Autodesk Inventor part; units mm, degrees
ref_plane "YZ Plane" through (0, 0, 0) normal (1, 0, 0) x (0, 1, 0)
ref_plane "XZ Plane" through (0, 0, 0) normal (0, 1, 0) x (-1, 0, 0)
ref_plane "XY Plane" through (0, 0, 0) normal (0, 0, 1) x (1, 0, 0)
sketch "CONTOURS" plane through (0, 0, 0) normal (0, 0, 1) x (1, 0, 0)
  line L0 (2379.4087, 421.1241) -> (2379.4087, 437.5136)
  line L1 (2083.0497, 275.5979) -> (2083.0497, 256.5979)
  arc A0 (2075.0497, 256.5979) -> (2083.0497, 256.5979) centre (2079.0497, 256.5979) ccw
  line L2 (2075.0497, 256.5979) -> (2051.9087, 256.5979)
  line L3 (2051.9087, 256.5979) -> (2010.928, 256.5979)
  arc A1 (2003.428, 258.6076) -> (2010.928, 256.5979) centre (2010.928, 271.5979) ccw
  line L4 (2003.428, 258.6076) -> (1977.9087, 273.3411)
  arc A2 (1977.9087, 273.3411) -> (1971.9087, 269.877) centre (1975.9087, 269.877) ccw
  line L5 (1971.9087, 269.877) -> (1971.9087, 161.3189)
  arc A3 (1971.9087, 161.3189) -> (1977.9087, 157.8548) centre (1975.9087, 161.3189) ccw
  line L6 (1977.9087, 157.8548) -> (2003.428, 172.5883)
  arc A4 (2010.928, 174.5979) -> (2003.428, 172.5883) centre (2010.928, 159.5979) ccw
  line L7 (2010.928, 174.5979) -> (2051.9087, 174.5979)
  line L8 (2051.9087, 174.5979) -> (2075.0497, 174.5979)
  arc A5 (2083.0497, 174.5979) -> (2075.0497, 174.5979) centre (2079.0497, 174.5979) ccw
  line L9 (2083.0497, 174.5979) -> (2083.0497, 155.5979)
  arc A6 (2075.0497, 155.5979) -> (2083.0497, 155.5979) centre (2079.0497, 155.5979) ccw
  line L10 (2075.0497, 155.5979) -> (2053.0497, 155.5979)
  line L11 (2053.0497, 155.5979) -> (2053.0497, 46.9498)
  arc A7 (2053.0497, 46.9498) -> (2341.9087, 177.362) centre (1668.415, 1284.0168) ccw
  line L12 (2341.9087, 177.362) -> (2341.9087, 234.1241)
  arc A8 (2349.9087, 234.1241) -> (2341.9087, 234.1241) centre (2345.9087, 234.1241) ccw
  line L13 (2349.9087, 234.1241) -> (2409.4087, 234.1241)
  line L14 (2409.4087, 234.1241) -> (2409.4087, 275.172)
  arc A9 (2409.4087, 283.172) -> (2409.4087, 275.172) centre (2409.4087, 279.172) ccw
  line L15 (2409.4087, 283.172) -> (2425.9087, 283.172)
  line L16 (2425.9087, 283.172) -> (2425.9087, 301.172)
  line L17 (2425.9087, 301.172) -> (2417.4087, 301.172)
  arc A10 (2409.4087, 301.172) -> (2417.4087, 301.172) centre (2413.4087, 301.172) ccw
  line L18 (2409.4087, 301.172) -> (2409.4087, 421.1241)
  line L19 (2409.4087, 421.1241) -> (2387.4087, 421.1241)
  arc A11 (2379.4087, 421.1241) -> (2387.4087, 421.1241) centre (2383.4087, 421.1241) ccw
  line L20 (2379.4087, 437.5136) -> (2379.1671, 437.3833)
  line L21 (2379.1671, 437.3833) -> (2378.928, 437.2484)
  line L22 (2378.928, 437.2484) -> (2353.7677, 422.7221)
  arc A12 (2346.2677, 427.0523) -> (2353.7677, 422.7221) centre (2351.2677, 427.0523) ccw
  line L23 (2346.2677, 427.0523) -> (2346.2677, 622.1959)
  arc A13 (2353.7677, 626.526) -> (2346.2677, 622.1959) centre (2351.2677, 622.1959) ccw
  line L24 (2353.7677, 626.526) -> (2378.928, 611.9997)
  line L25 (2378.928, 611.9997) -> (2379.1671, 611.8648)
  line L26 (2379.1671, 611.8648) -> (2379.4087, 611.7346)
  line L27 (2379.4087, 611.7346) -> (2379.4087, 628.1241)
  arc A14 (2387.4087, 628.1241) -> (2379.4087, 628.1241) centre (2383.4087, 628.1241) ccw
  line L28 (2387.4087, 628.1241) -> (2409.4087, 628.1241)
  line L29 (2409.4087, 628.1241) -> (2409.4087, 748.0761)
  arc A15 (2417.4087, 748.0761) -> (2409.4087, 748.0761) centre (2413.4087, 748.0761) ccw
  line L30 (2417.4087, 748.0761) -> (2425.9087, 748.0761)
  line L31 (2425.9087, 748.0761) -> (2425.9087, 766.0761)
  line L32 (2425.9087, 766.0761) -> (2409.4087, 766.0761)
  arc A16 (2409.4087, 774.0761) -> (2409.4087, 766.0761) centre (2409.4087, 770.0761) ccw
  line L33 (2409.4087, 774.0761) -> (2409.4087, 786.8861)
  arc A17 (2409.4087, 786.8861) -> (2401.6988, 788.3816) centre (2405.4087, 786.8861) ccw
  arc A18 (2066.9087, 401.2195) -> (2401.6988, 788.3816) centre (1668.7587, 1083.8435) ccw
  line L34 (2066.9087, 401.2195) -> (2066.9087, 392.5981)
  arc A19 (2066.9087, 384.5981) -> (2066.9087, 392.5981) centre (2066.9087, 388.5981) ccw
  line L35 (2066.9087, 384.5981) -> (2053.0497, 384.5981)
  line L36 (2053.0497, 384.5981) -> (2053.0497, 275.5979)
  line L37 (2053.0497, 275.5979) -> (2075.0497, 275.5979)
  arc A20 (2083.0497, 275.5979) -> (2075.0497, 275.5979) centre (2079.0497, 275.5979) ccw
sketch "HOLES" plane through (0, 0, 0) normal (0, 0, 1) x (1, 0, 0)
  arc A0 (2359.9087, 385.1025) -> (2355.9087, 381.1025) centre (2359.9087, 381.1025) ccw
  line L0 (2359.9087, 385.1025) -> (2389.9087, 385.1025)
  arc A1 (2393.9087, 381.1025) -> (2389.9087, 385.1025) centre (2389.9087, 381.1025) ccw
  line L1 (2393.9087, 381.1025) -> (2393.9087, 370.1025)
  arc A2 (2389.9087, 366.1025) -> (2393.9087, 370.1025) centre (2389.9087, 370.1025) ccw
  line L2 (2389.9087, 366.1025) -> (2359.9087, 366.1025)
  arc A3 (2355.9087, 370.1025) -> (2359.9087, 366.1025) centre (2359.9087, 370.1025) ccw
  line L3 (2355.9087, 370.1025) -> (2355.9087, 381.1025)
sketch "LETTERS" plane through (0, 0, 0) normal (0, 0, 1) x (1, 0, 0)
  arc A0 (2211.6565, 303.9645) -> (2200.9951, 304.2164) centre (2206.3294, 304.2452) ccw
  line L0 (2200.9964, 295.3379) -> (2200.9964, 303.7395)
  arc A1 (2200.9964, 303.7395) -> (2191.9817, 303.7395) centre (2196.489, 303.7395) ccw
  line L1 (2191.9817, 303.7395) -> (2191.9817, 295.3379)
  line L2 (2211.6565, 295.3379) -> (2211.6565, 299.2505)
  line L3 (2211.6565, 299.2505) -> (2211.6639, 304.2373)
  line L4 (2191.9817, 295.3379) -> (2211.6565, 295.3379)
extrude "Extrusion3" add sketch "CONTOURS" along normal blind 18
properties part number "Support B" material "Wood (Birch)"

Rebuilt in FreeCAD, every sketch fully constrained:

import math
import FreeCAD as App
import Part
import Sketcher

V = App.Vector
Q = App.Units.Quantity

doc = App.newDocument("Part")
body = doc.addObject("PartDesign::Body", "Body")

# Sketch on XY plane
sketch1 = body.newObject("Sketcher::SketchObject", "Sketch")
sketch1.AttachmentSupport = (doc.getObject("XY_Plane"), [""])
sketch1.MapMode = "FlatFace"
sketch1.addGeometry(Part.ArcOfCircle(Part.Circle(V(2383.4087, 421.1241, 0), V(0, 0, 1), 4), math.radians(180), math.radians(360)), False)
sketch1.addGeometry(Part.LineSegment(V(2379.4087, 421.1241, 0), V(2379.4087, 437.5136, 0)), False)
sketch1.addGeometry(Part.LineSegment(V(2379.4087, 437.5136, 0), V(2379.1671, 437.3833, 0)), False)
sketch1.addGeometry(Part.LineSegment(V(2379.1671, 437.3833, 0), V(2378.928, 437.2484, 0)), False)
sketch1.addGeometry(Part.LineSegment(V(2378.928, 437.2484, 0), V(2353.7677, 422.7221, 0)), False)
sketch1.addGeometry(Part.ArcOfCircle(Part.Circle(V(2351.2677, 427.0523, 0), V(0, 0, 1), 5), math.radians(180), math.radians(299.999582)), False)
sketch1.addGeometry(Part.LineSegment(V(2346.2677, 427.0523, 0), V(2346.2677, 622.1959, 0)), False)
sketch1.addGeometry(Part.ArcOfCircle(Part.Circle(V(2351.2677, 622.1959, 0), V(0, 0, 1), 4.999977), math.radians(59.999845), math.radians(180)), False)
sketch1.addGeometry(Part.LineSegment(V(2353.7677, 626.526, 0), V(2378.928, 611.9997, 0)), False)
sketch1.addGeometry(Part.LineSegment(V(2378.928, 611.9997, 0), V(2379.1671, 611.8648, 0)), False)
sketch1.addGeometry(Part.LineSegment(V(2379.1671, 611.8648, 0), V(2379.4087, 611.7346, 0)), False)
sketch1.addGeometry(Part.LineSegment(V(2379.4087, 611.7346, 0), V(2379.4087, 628.1241, 0)), False)
sketch1.addGeometry(Part.ArcOfCircle(Part.Circle(V(2383.4087, 628.1241, 0), V(0, 0, 1), 4), math.radians(0), math.radians(180)), False)
sketch1.addGeometry(Part.LineSegment(V(2387.4087, 628.1241, 0), V(2409.4087, 628.1241, 0)), False)
sketch1.addGeometry(Part.LineSegment(V(2409.4087, 628.1241, 0), V(2409.4087, 748.0761, 0)), False)
sketch1.addGeometry(Part.ArcOfCircle(Part.Circle(V(2413.4087, 748.0761, 0), V(0, 0, 1), 4), math.radians(0), math.radians(180)), False)
sketch1.addGeometry(Part.LineSegment(V(2417.4087, 748.0761, 0), V(2425.9087, 748.0761, 0)), False)
sketch1.addGeometry(Part.LineSegment(V(2425.9087, 748.0761, 0), V(2425.9087, 766.0761, 0)), False)
sketch1.addGeometry(Part.LineSegment(V(2425.9087, 766.0761, 0), V(2409.4087, 766.0761, 0)), False)
sketch1.addGeometry(Part.ArcOfCircle(Part.Circle(V(2409.4087, 770.0761, 0), V(0, 0, 1), 4), math.radians(90), math.radians(270)), False)
sketch1.addGeometry(Part.LineSegment(V(2409.4087, 774.0761, 0), V(2409.4087, 786.8861, 0)), False)
sketch1.addGeometry(Part.ArcOfCircle(Part.Circle(V(2405.4087, 786.8861, 0), V(0, 0, 1), 4), math.radians(0), math.radians(158.045114)), False)
sketch1.addGeometry(Part.ArcOfCircle(Part.Circle(V(1668.7587, 1083.8435, 0), V(0, 0, 1), 790.252458), math.radians(-59.746527), math.radians(-21.955288)), False)
sketch1.addGeometry(Part.LineSegment(V(2066.9087, 401.2195, 0), V(2066.9087, 392.5981, 0)), False)
sketch1.addGeometry(Part.ArcOfCircle(Part.Circle(V(2066.9087, 388.5981, 0), V(0, 0, 1), 4), math.radians(-90), math.radians(90)), False)
sketch1.addGeometry(Part.LineSegment(V(2066.9087, 384.5981, 0), V(2053.0497, 384.5981, 0)), False)
sketch1.addGeometry(Part.LineSegment(V(2053.0497, 384.5981, 0), V(2053.0497, 275.5979, 0)), False)
sketch1.addGeometry(Part.LineSegment(V(2053.0497, 275.5979, 0), V(2075.0497, 275.5979, 0)), False)
sketch1.addGeometry(Part.ArcOfCircle(Part.Circle(V(2079.0497, 275.5979, 0), V(0, 0, 1), 4), math.radians(0), math.radians(180)), False)
sketch1.addGeometry(Part.LineSegment(V(2083.0497, 275.5979, 0), V(2083.0497, 256.5979, 0)), False)
sketch1.addGeometry(Part.ArcOfCircle(Part.Circle(V(2079.0497, 256.5979, 0), V(0, 0, 1), 4), math.radians(180), math.radians(360)), False)
sketch1.addGeometry(Part.LineSegment(V(2075.0497, 256.5979, 0), V(2010.928, 256.5979, 0)), False)
sketch1.addGeometry(Part.ArcOfCircle(Part.Circle(V(2010.928398, 271.59886, 0), V(0, 0, 1), 15.00096), math.radians(-119.999637), math.radians(-90.001519)), False)
sketch1.addGeometry(Part.LineSegment(V(2003.428, 258.6076, 0), V(1977.9087, 273.3411, 0)), False)
sketch1.addGeometry(Part.ArcOfCircle(Part.Circle(V(1975.9087, 269.877, 0), V(0, 0, 1), 3.999999), math.radians(59.999988), math.radians(180)), False)
sketch1.addGeometry(Part.LineSegment(V(1971.9087, 269.877, 0), V(1971.9087, 161.3189, 0)), False)
sketch1.addGeometry(Part.ArcOfCircle(Part.Circle(V(1975.9087, 161.3189, 0), V(0, 0, 1), 4), math.radians(180), math.radians(300.000012)), False)
sketch1.addGeometry(Part.LineSegment(V(1977.9087, 157.8548, 0), V(2003.428, 172.5883, 0)), False)
sketch1.addGeometry(Part.ArcOfCircle(Part.Circle(V(2010.928, 159.5979, 0), V(0, 0, 1), 15), math.radians(90), math.radians(119.999964)), False)
sketch1.addGeometry(Part.LineSegment(V(2010.928, 174.5979, 0), V(2075.0497, 174.5979, 0)), False)
sketch1.addGeometry(Part.ArcOfCircle(Part.Circle(V(2079.0497, 174.5979, 0), V(0, 0, 1), 4), math.radians(0), math.radians(180)), False)
sketch1.addGeometry(Part.LineSegment(V(2083.0497, 174.5979, 0), V(2083.0497, 155.5979, 0)), False)
sketch1.addGeometry(Part.ArcOfCircle(Part.Circle(V(2079.0497, 155.5979, 0), V(0, 0, 1), 4), math.radians(180), math.radians(360)), False)
sketch1.addGeometry(Part.LineSegment(V(2075.0497, 155.5979, 0), V(2053.0497, 155.5979, 0)), False)
sketch1.addGeometry(Part.LineSegment(V(2053.0497, 155.5979, 0), V(2053.0497, 46.9498, 0)), False)
sketch1.addGeometry(Part.ArcOfCircle(Part.Circle(V(1668.415, 1284.0168, 0), V(0, 0, 1), 1295.483931), math.radians(-72.72824), math.radians(-58.675926)), False)
sketch1.addGeometry(Part.LineSegment(V(2341.9087, 177.362, 0), V(2341.9087, 234.1241, 0)), False)
sketch1.addGeometry(Part.ArcOfCircle(Part.Circle(V(2345.9087, 234.1241, 0), V(0, 0, 1), 4), math.radians(0), math.radians(180)), False)
sketch1.addGeometry(Part.LineSegment(V(2349.9087, 234.1241, 0), V(2409.4087, 234.1241, 0)), False)
sketch1.addGeometry(Part.LineSegment(V(2409.4087, 234.1241, 0), V(2409.4087, 275.172, 0)), False)
sketch1.addGeometry(Part.ArcOfCircle(Part.Circle(V(2409.4087, 279.172, 0), V(0, 0, 1), 4), math.radians(90), math.radians(270)), False)
sketch1.addGeometry(Part.LineSegment(V(2409.4087, 283.172, 0), V(2425.9087, 283.172, 0)), False)
sketch1.addGeometry(Part.LineSegment(V(2425.9087, 283.172, 0), V(2425.9087, 301.172, 0)), False)
sketch1.addGeometry(Part.LineSegment(V(2425.9087, 301.172, 0), V(2417.4087, 301.172, 0)), False)
sketch1.addGeometry(Part.ArcOfCircle(Part.Circle(V(2413.4087, 301.172, 0), V(0, 0, 1), 4), math.radians(180), math.radians(360)), False)
sketch1.addGeometry(Part.LineSegment(V(2409.4087, 301.172, 0), V(2409.4087, 421.1241, 0)), False)
sketch1.addGeometry(Part.LineSegment(V(2409.4087, 421.1241, 0), V(2387.4087, 421.1241, 0)), False)
sketch1.addConstraint(Sketcher.Constraint("Tangent", 0, 1, 1, 1))
sketch1.addConstraint(Sketcher.Constraint("Coincident", 1, 2, 2, 1))
sketch1.addConstraint(Sketcher.Constraint("Coincident", 2, 2, 3, 1))
sketch1.addConstraint(Sketcher.Constraint("Coincident", 3, 2, 4, 1))
sketch1.addConstraint(Sketcher.Constraint("Tangent", 4, 2, 5, 2))
sketch1.addConstraint(Sketcher.Constraint("Tangent", 5, 1, 6, 1))
sketch1.addConstraint(Sketcher.Constraint("Tangent", 6, 2, 7, 2))
sketch1.addConstraint(Sketcher.Constraint("Tangent", 7, 1, 8, 1))
sketch1.addConstraint(Sketcher.Constraint("Coincident", 8, 2, 9, 1))
sketch1.addConstraint(Sketcher.Constraint("Coincident", 9, 2, 10, 1))
sketch1.addConstraint(Sketcher.Constraint("Coincident", 10, 2, 11, 1))
sketch1.addConstraint(Sketcher.Constraint("Tangent", 11, 2, 12, 2))
sketch1.addConstraint(Sketcher.Constraint("Coincident", 12, 1, 13, 1))
sketch1.addConstraint(Sketcher.Constraint("Coincident", 13, 2, 14, 1))
sketch1.addConstraint(Sketcher.Constraint("Tangent", 14, 2, 15, 2))
sketch1.addConstraint(Sketcher.Constraint("Coincident", 15, 1, 16, 1))
sketch1.addConstraint(Sketcher.Constraint("Coincident", 16, 2, 17, 1))
sketch1.addConstraint(Sketcher.Constraint("Coincident", 17, 2, 18, 1))
sketch1.addConstraint(Sketcher.Constraint("Tangent", 18, 2, 19, 2))
sketch1.addConstraint(Sketcher.Constraint("Coincident", 19, 1, 20, 1))
sketch1.addConstraint(Sketcher.Constraint("Tangent", 20, 2, 21, 1))
sketch1.addConstraint(Sketcher.Constraint("Tangent", 21, 2, 22, 2))
sketch1.addConstraint(Sketcher.Constraint("Coincident", 22, 1, 23, 1))
sketch1.addConstraint(Sketcher.Constraint("Coincident", 23, 2, 24, 2))
sketch1.addConstraint(Sketcher.Constraint("Tangent", 24, 1, 25, 1))
sketch1.addConstraint(Sketcher.Constraint("Coincident", 25, 2, 26, 1))
sketch1.addConstraint(Sketcher.Constraint("Coincident", 26, 2, 27, 1))
sketch1.addConstraint(Sketcher.Constraint("Coincident", 27, 2, 28, 2))
sketch1.addConstraint(Sketcher.Constraint("Tangent", 28, 1, 29, 1))
sketch1.addConstraint(Sketcher.Constraint("Tangent", 29, 2, 30, 2))
sketch1.addConstraint(Sketcher.Constraint("Coincident", 30, 1, 31, 1))
sketch1.addConstraint(Sketcher.Constraint("Tangent", 31, 2, 32, 2))
sketch1.addConstraint(Sketcher.Constraint("Tangent", 32, 1, 33, 1))
sketch1.addConstraint(Sketcher.Constraint("Tangent", 33, 2, 34, 1))
sketch1.addConstraint(Sketcher.Constraint("Tangent", 34, 2, 35, 1))
sketch1.addConstraint(Sketcher.Constraint("Tangent", 35, 2, 36, 1))
sketch1.addConstraint(Sketcher.Constraint("Tangent", 36, 2, 37, 1))
sketch1.addConstraint(Sketcher.Constraint("Tangent", 37, 2, 38, 2))
sketch1.addConstraint(Sketcher.Constraint("Tangent", 38, 1, 39, 1))
sketch1.addConstraint(Sketcher.Constraint("Coincident", 39, 2, 40, 2))
sketch1.addConstraint(Sketcher.Constraint("Tangent", 40, 1, 41, 1))
sketch1.addConstraint(Sketcher.Constraint("Tangent", 41, 2, 42, 2))
sketch1.addConstraint(Sketcher.Constraint("Coincident", 42, 1, 43, 1))
sketch1.addConstraint(Sketcher.Constraint("Coincident", 43, 2, 44, 1))
sketch1.addConstraint(Sketcher.Constraint("Coincident", 44, 2, 45, 1))
sketch1.addConstraint(Sketcher.Constraint("Coincident", 45, 2, 46, 1))
sketch1.addConstraint(Sketcher.Constraint("Tangent", 46, 2, 47, 2))
sketch1.addConstraint(Sketcher.Constraint("Coincident", 47, 1, 48, 1))
sketch1.addConstraint(Sketcher.Constraint("Coincident", 48, 2, 49, 1))
sketch1.addConstraint(Sketcher.Constraint("Coincident", 49, 2, 50, 2))
sketch1.addConstraint(Sketcher.Constraint("Tangent", 50, 1, 51, 1))
sketch1.addConstraint(Sketcher.Constraint("Coincident", 51, 2, 52, 1))
sketch1.addConstraint(Sketcher.Constraint("Coincident", 52, 2, 53, 1))
sketch1.addConstraint(Sketcher.Constraint("Coincident", 53, 2, 54, 2))
sketch1.addConstraint(Sketcher.Constraint("Tangent", 54, 1, 55, 1))
sketch1.addConstraint(Sketcher.Constraint("Coincident", 55, 2, 56, 1))
sketch1.addConstraint(Sketcher.Constraint("Coincident", 56, 2, 0, 2))
sketch1.addConstraint(Sketcher.Constraint("Vertical", 1))
sketch1.addConstraint(Sketcher.Constraint("Vertical", 6))
sketch1.addConstraint(Sketcher.Constraint("Vertical", 11))
sketch1.addConstraint(Sketcher.Constraint("Horizontal", 13))
sketch1.addConstraint(Sketcher.Constraint("Vertical", 14))
sketch1.addConstraint(Sketcher.Constraint("Horizontal", 16))
sketch1.addConstraint(Sketcher.Constraint("Vertical", 17))
sketch1.addConstraint(Sketcher.Constraint("Horizontal", 18))
sketch1.addConstraint(Sketcher.Constraint("Vertical", 20))
sketch1.addConstraint(Sketcher.Constraint("Vertical", 23))
sketch1.addConstraint(Sketcher.Constraint("Horizontal", 25))
sketch1.addConstraint(Sketcher.Constraint("Vertical", 26))
sketch1.addConstraint(Sketcher.Constraint("Horizontal", 27))
sketch1.addConstraint(Sketcher.Constraint("Vertical", 29))
sketch1.addConstraint(Sketcher.Constraint("Horizontal", 31))
sketch1.addConstraint(Sketcher.Constraint("Vertical", 35))
sketch1.addConstraint(Sketcher.Constraint("Horizontal", 39))
sketch1.addConstraint(Sketcher.Constraint("Vertical", 41))
sketch1.addConstraint(Sketcher.Constraint("Horizontal", 43))
sketch1.addConstraint(Sketcher.Constraint("Vertical", 44))
sketch1.addConstraint(Sketcher.Constraint("Vertical", 46))
sketch1.addConstraint(Sketcher.Constraint("Horizontal", 48))
sketch1.addConstraint(Sketcher.Constraint("Vertical", 49))
sketch1.addConstraint(Sketcher.Constraint("Horizontal", 51))
sketch1.addConstraint(Sketcher.Constraint("Vertical", 52))
sketch1.addConstraint(Sketcher.Constraint("Horizontal", 53))
sketch1.addConstraint(Sketcher.Constraint("Vertical", 55))
sketch1.addConstraint(Sketcher.Constraint("Horizontal", 56))
sketch1.addConstraint(Sketcher.Constraint("Equal", 5, 7))
sketch1.addConstraint(Sketcher.Constraint("Equal", 0, 12))
sketch1.addConstraint(Sketcher.Constraint("Equal", 12, 15))
sketch1.addConstraint(Sketcher.Constraint("Equal", 15, 19))
sketch1.addConstraint(Sketcher.Constraint("Equal", 19, 21))
sketch1.addConstraint(Sketcher.Constraint("Equal", 21, 24))
sketch1.addConstraint(Sketcher.Constraint("Equal", 24, 28))
sketch1.addConstraint(Sketcher.Constraint("Equal", 28, 30))
sketch1.addConstraint(Sketcher.Constraint("Equal", 30, 34))
sketch1.addConstraint(Sketcher.Constraint("Equal", 34, 36))
sketch1.addConstraint(Sketcher.Constraint("Equal", 36, 40))
sketch1.addConstraint(Sketcher.Constraint("Equal", 40, 42))
sketch1.addConstraint(Sketcher.Constraint("Equal", 42, 47))
sketch1.addConstraint(Sketcher.Constraint("Equal", 47, 50))
sketch1.addConstraint(Sketcher.Constraint("Equal", 50, 54))
sketch1.addConstraint(Sketcher.Constraint("Parallel", 8, 33))
sketch1.addConstraint(Sketcher.Constraint("Parallel", 4, 37))
sketch1.addConstraint(Sketcher.Constraint("Horizontal", 11, 2, 12, 1))
sketch1.addConstraint(Sketcher.Constraint("Horizontal", 14, 2, 15, 1))
sketch1.addConstraint(Sketcher.Constraint("Horizontal", 28, 3, 26, 2))
sketch1.addConstraint(Sketcher.Constraint("Horizontal", 29, 2, 30, 1))
sketch1.addConstraint(Sketcher.Constraint("Horizontal", 40, 3, 38, 1))
sketch1.addConstraint(Sketcher.Constraint("Horizontal", 41, 2, 42, 1))
sketch1.addConstraint(Sketcher.Constraint("Horizontal", 46, 2, 47, 1))
sketch1.addConstraint(Sketcher.Constraint("Horizontal", 54, 3, 52, 2))
sketch1.addConstraint(Sketcher.Constraint("Horizontal", 0, 1, 55, 2))
sketch1.addConstraint(Sketcher.Constraint("Vertical", 0, 3, 12, 3))
sketch1.addConstraint(Sketcher.Constraint("Vertical", 30, 3, 40, 3))
sketch1.addConstraint(Sketcher.Constraint("Vertical", 19, 3, 50, 3))
sketch1.addConstraint(Sketcher.Constraint("Vertical", 15, 3, 54, 3))
sketch1.addConstraint(Sketcher.Constraint("Vertical", 4, 2, 7, 1))
sketch1.addConstraint(Sketcher.Constraint("Vertical", 3, 2, 8, 2))
sketch1.addConstraint(Sketcher.Constraint("Vertical", 2, 2, 9, 2))
sketch1.addConstraint(Sketcher.Constraint("Vertical", 50, 3, 13, 2))
sketch1.addConstraint(Sketcher.Constraint("Vertical", 18, 2, 19, 1))
sketch1.addConstraint(Sketcher.Constraint("Vertical", 23, 2, 24, 1))
sketch1.addConstraint(Sketcher.Constraint("Vertical", 38, 3, 31, 2))
sketch1.addConstraint(Sketcher.Constraint("Vertical", 32, 1, 37, 2))
sketch1.addConstraint(Sketcher.Constraint("Vertical", 26, 2, 43, 2))
sketch1.addConstraint(Sketcher.Constraint("Vertical", 20, 2, 48, 2))
sketch1.addConstraint(Sketcher.Constraint("Vertical", 17, 2, 51, 2))
sketch1.addConstraint(Sketcher.Constraint("Equal", 13, 27))
sketch1.addConstraint(Sketcher.Constraint("Equal", 1, 11))
sketch1.addConstraint(Sketcher.Constraint("Equal", 29, 41))
sketch1.addConstraint(Sketcher.Constraint("Equal", 17, 52))
sketch1.addConstraint(Sketcher.Constraint("Equal", 14, 55))
sketch1.addConstraint(Sketcher.Constraint("Equal", 2, 3))
sketch1.addConstraint(Sketcher.Constraint("Equal", 3, 9))
sketch1.addConstraint(Sketcher.Constraint("Equal", 9, 10))
sketch1.addConstraint(Sketcher.Constraint("Radius", 0, Q("4 mm")))
sketch1.addConstraint(Sketcher.Constraint("Radius", 5, Q("5 mm")))
sketch1.addConstraint(Sketcher.Constraint("Radius", 38, Q("15 mm")))
sketch1.addConstraint(Sketcher.Constraint("DistanceX", 13, 1, 13, 2, Q("22 mm")))
sketch1.addConstraint(Sketcher.Constraint("DistanceY", 17, 1, 17, 2, Q("18 mm")))
sketch1.addConstraint(Sketcher.Constraint("DistanceY", 29, 2, 29, 1, Q("19 mm")))
sketch1.addConstraint(Sketcher.Constraint("Angle", 4, Q("-150 deg")))
sketch1.addConstraint(Sketcher.Constraint("DistanceX", 16, 1, 16, 2, Q("8.5 mm")))
sketch1.addConstraint(Sketcher.Constraint("DistanceX", 48, 1, 48, 2, Q("59.5 mm")))
sketch1.addConstraint(Sketcher.Constraint("Radius", 45, Q("1295.484 mm")))
sketch1.addConstraint(Sketcher.Constraint("DistanceY", 20, 1, 20, 2, Q("12.81 mm")))
sketch1.addConstraint(Sketcher.Constraint("Angle", 2, Q("-151.661 deg")))
sketch1.addConstraint(Sketcher.Constraint("Radius", 22, Q("790.2525 mm")))
sketch1.addConstraint(Sketcher.Constraint("DistanceX", 25, 2, 25, 1, Q("13.859 mm")))
sketch1.addConstraint(Sketcher.Constraint("DistanceY", 14, 1, 14, 2, Q("119.952 mm")))
sketch1.addConstraint(Sketcher.Constraint("DistanceY", 35, 2, 35, 1, Q("108.558 mm")))
sketch1.addConstraint(Sketcher.Constraint("DistanceY", 44, 2, 44, 1, Q("108.648 mm")))
sketch1.addConstraint(Sketcher.Constraint("DistanceY", 46, 1, 46, 2, Q("56.762 mm")))
sketch1.addConstraint(Sketcher.Constraint("DistanceY", 49, 1, 49, 2, Q("41.048 mm")))
sketch1.addConstraint(Sketcher.Constraint("Distance", 33, Q("29.467 mm")))
sketch1.addConstraint(Sketcher.Constraint("DistanceX", 31, 2, 31, 1, Q("64.1217 mm")))
sketch1.addConstraint(Sketcher.Constraint("DistanceY", 1, 1, 1, 2, Q("16.3895 mm")))
sketch1.addConstraint(Sketcher.Constraint("DistanceY", 6, 1, 6, 2, Q("195.1436 mm")))
sketch1.addConstraint(Sketcher.Constraint("DistanceY", 23, 2, 23, 1, Q("8.6214 mm")))
sketch1.addConstraint(Sketcher.Constraint("DistanceY", 26, 2, 26, 1, Q("109.0002 mm")))
sketch1.addConstraint(Sketcher.Constraint("DistanceY", -1, 1, 0, 3, Q("421.124 mm")))
sketch1.addConstraint(Sketcher.Constraint("DistanceY", -1, 1, 7, 3, Q("622.196 mm")))
sketch1.addConstraint(Sketcher.Constraint("DistanceY", -1, 1, 24, 3, Q("388.598 mm")))
sketch1.addConstraint(Sketcher.Constraint("DistanceX", -1, 1, 38, 3, Q("2010.928 mm")))
sketch1.addConstraint(Sketcher.Constraint("DistanceX", -1, 1, 45, 3, Q("1668.415 mm")))
sketch1.addConstraint(Sketcher.Constraint("DistanceX", -1, 1, 2, 2, Q("2379.167 mm")))
sketch1.addConstraint(Sketcher.Constraint("DistanceX", -1, 1, 3, 2, Q("2378.928 mm")))
pad1 = body.newObject("PartDesign::Pad", "Pad")
pad1.Profile = sketch1
pad1.Length = 18

doc.recompute()
